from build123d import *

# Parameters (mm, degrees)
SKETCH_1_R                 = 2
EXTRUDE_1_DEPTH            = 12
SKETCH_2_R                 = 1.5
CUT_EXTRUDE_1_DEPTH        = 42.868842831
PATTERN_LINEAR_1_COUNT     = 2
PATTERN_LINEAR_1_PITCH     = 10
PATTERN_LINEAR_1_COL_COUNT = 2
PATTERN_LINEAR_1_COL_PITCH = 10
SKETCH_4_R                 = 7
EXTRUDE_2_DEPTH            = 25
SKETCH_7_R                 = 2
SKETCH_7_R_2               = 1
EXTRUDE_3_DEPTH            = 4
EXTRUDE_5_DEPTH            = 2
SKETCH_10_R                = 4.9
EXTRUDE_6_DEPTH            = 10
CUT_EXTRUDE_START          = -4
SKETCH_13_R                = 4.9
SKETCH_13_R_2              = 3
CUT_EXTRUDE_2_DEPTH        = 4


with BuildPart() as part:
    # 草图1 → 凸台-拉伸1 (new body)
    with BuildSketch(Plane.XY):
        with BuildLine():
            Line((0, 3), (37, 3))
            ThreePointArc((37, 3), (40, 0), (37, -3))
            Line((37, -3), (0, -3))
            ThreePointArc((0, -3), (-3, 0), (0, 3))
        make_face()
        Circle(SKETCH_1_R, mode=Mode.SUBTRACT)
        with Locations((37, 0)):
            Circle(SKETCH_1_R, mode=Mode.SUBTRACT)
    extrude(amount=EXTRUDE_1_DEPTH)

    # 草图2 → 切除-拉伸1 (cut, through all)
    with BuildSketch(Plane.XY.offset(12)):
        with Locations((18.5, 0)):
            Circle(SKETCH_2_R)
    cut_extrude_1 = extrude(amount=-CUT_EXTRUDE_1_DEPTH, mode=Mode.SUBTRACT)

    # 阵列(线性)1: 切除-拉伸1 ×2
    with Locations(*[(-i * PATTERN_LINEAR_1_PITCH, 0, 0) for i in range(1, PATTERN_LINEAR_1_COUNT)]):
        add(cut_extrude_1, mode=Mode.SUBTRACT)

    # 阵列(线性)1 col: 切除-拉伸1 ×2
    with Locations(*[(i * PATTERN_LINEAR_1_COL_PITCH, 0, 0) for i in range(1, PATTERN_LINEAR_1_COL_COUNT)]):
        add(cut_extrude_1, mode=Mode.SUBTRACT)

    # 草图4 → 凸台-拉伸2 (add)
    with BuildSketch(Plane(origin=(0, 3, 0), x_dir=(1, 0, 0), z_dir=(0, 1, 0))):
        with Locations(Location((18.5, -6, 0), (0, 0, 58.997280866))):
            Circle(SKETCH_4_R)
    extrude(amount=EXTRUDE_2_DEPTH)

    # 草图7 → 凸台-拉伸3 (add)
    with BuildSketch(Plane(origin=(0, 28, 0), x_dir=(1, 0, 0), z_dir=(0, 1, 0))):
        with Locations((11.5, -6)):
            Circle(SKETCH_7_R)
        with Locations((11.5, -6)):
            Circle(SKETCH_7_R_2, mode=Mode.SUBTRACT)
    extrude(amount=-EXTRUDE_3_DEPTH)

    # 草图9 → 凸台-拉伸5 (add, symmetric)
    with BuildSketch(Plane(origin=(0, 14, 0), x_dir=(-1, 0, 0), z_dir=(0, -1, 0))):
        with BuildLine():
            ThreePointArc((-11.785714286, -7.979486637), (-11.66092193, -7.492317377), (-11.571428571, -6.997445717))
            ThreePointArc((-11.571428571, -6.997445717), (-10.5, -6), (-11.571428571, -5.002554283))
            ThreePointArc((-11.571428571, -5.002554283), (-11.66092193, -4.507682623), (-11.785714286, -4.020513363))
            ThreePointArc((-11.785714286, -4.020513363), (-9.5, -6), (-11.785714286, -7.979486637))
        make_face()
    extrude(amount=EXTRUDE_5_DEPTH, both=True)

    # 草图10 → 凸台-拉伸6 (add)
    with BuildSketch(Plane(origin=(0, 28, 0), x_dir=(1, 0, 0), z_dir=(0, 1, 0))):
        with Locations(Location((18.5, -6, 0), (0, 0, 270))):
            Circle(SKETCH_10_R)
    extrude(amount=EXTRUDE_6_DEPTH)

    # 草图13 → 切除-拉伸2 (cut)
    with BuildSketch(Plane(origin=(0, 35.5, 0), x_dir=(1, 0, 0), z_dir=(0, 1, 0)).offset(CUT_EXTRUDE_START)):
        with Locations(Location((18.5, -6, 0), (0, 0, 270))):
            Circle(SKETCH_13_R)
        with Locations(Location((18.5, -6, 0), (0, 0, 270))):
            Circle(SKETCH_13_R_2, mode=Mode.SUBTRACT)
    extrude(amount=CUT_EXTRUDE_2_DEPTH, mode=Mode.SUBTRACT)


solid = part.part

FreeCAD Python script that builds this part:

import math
import FreeCAD as App
import Part
import Sketcher
Q = App.Units.Quantity

doc = App.newDocument("Part")
params = doc.addObject("Spreadsheet::Sheet", "Params")
for row, (alias, value) in enumerate([
    ("sketch1_diameter", "4 mm"),
    ("sketch1_radius", "3 mm"),
    ("sketch1_width", "37 mm"),
    ("pad1_length", "12 mm"),
    ("sketch2_diameter", "3 mm"),
    ("linearpattern_pitch", "10 mm"),
    ("linearpattern2_pitch", "10 mm"),
    ("sketch3_diameter", "14 mm"),
    ("pad2_length", "25 mm"),
    ("sketch4_diameter", "4 mm"),
    ("sketch4_diameter2", "2 mm"),
    ("pad3_length", "4 mm"),
    ("sketch5_radius", "7 mm"),
    ("sketch5_radius2", "2 mm"),
    ("sketch5_radius3", "1 mm"),
    ("pad4_length", "4 mm"),
    ("sketch6_diameter", "9.8 mm"),
    ("pad5_length", "10 mm"),
    ("sketch7_diameter", "6 mm"),
    ("sketch7_diameter2", "9.8 mm"),
    ("pocket2_length", "4 mm"),
], start=1):
    params.set(f"A{row}", alias)
    params.set(f"B{row}", "=" + value)
    params.setAlias(f"B{row}", alias)

body = doc.addObject("PartDesign::Body", "Body")

# Sketch on XY plane
sketch1 = body.newObject("Sketcher::SketchObject", "Sketch")
sketch1.AttachmentSupport = (doc.getObject("XY_Plane"), [""])
sketch1.MapMode = "FlatFace"
sketch1.addGeometry([
    Part.LineSegment(App.Vector(37, 3, 0), App.Vector(0, 3, 0)),  # 0
    Part.ArcOfCircle(Part.Circle(App.Vector(0, 0, 0), App.Vector(0, 0, 1), 3), math.radians(90), math.radians(270)),  # 1
    Part.LineSegment(App.Vector(0, -3, 0), App.Vector(37, -3, 0)),  # 2
    Part.ArcOfCircle(Part.Circle(App.Vector(37, 0, 0), App.Vector(0, 0, 1), 3), math.radians(-90), math.radians(90)),  # 3
    Part.Circle(App.Vector(37, 0, 0), App.Vector(0, 0, 1), 2),  # 4
    Part.Circle(App.Vector(0, 0, 0), App.Vector(0, 0, 1), 2),  # 5
], False)
sketch1.addConstraint([
    Sketcher.Constraint("Tangent", 0, 2, 1, 1),
    Sketcher.Constraint("Tangent", 1, 2, 2, 1),
    Sketcher.Constraint("Tangent", 2, 2, 3, 1),
    Sketcher.Constraint("Tangent", 3, 2, 0, 1),
    Sketcher.Constraint("Horizontal", 0),
    Sketcher.Constraint("Horizontal", 2),
    Sketcher.Constraint("Coincident", 1, 3, -1, 1),
    Sketcher.Constraint("Coincident", 5, 3, -1, 1),
    Sketcher.Constraint("Coincident", 4, 3, 3, 3),
    Sketcher.Constraint("Equal", 4, 5),
    Sketcher.Constraint("Diameter", 4, Q("4 mm")),
    Sketcher.Constraint("Radius", 1, Q("3 mm")),
    Sketcher.Constraint("DistanceX", 0, 2, 0, 1, Q("37 mm")),
])
sketch1.setExpression("Constraints[10]", "Params.sketch1_diameter")
sketch1.setExpression("Constraints[11]", "Params.sketch1_radius")
sketch1.setExpression("Constraints[12]", "Params.sketch1_width")
pad1 = body.newObject("PartDesign::Pad", "Pad")
pad1.Profile = sketch1
pad1.setExpression("Length", "Params.pad1_length")

# Sketch on XY plane
sketch2 = body.newObject("Sketcher::SketchObject", "Sketch001")
sketch2.AttachmentSupport = (doc.getObject("XY_Plane"), [""])
sketch2.MapMode = "FlatFace"
sketch2.AttachmentOffset = App.Placement(App.Vector(0, 0, 12), App.Rotation())
sketch2.addGeometry(Part.Circle(App.Vector(18.5, 0, 0), App.Vector(0, 0, 1), 1.5), False)
sketch2.addConstraint([
    Sketcher.Constraint("PointOnObject", 0, 3, -1),
    Sketcher.Constraint("Diameter", 0, Q("3 mm")),
    Sketcher.Constraint("DistanceX", -1, 1, 0, 3, Q("18.5 mm")),
])
sketch2.setExpression("Constraints[1]", "Params.sketch2_diameter")
pocket1 = body.newObject("PartDesign::Pocket", "Pocket")
pocket1.Profile = sketch2
pocket1.Type = "ThroughAll"
doc.recompute()

linearpattern = body.newObject("PartDesign::LinearPattern", "LinearPattern")
linearpattern.Originals = [pocket1]
linearpattern.Direction = (doc.getObject("X_Axis"), [""])
linearpattern.Mode = "offset"
linearpattern.setExpression("Offset", "Params.linearpattern_pitch")
linearpattern.Occurrences = 2
linearpattern.Reversed = True
body.Tip = linearpattern
doc.recompute()

linearpattern2 = body.newObject("PartDesign::LinearPattern", "LinearPattern001")
linearpattern2.Originals = [pocket1]
linearpattern2.Direction = (doc.getObject("X_Axis"), [""])
linearpattern2.Mode = "offset"
linearpattern2.setExpression("Offset", "Params.linearpattern2_pitch")
linearpattern2.Occurrences = 2
body.Tip = linearpattern2

# Sketch on XZ plane
sketch3 = body.newObject("Sketcher::SketchObject", "Sketch002")
sketch3.AttachmentSupport = (doc.getObject("XZ_Plane"), [""])
sketch3.MapMode = "FlatFace"
sketch3.AttachmentOffset = App.Placement(App.Vector(0, 0, -3), App.Rotation())
sketch3.addGeometry(Part.Circle(App.Vector(18, 6, 0), App.Vector(0, 0, 1), 7), False)
sketch3.addConstraint([
    Sketcher.Constraint("Diameter", 0, Q("14 mm")),
    Sketcher.Constraint("DistanceY", -1, 1, 0, 3, Q("6 mm")),
    Sketcher.Constraint("DistanceX", -1, 1, 0, 3, Q("18.5 mm")),
])
sketch3.setExpression("Constraints[0]", "Params.sketch3_diameter")
pad2 = body.newObject("PartDesign::Pad", "Pad001")
pad2.Profile = sketch3
pad2.setExpression("Length", "Params.pad2_length")
pad2.Reversed = True

# Sketch on XZ plane
sketch4 = body.newObject("Sketcher::SketchObject", "Sketch003")
sketch4.AttachmentSupport = (doc.getObject("XZ_Plane"), [""])
sketch4.MapMode = "FlatFace"
sketch4.AttachmentOffset = App.Placement(App.Vector(0, 0, -28), App.Rotation())
sketch4.addGeometry([
    Part.Circle(App.Vector(11.5, 6, 0), App.Vector(0, 0, 1), 2),
    Part.Circle(App.Vector(11.5, 6, 0), App.Vector(0, 0, 1), 1),
], False)
sketch4.addConstraint([
    Sketcher.Constraint("Coincident", 1, 3, 0, 3),
    Sketcher.Constraint("Diameter", 0, Q("4 mm")),
    Sketcher.Constraint("Diameter", 1, Q("2 mm")),
    Sketcher.Constraint("DistanceY", -1, 1, 0, 3, Q("6 mm")),
    Sketcher.Constraint("DistanceX", -1, 1, 0, 3, Q("11.5 mm")),
])
sketch4.setExpression("Constraints[1]", "Params.sketch4_diameter")
sketch4.setExpression("Constraints[2]", "Params.sketch4_diameter2")
pad3 = body.newObject("PartDesign::Pad", "Pad002")
pad3.Profile = sketch4
pad3.setExpression("Length", "Params.pad3_length")

# Sketch on XZ plane
sketch5 = body.newObject("Sketcher::SketchObject", "Sketch004")
sketch5.AttachmentSupport = (doc.getObject("XZ_Plane"), [""])
sketch5.MapMode = "FlatFace"
sketch5.AttachmentOffset = App.Placement(App.Vector(0, 0, -14), App.Rotation())
sketch5.addGeometry([
    Part.ArcOfCircle(Part.Circle(App.Vector(18.5, 6, 0), App.Vector(0, 0, 1), 7), math.radians(163.57), math.radians(171.81)),
    Part.ArcOfCircle(Part.Circle(App.Vector(11.5, 6, 0), App.Vector(0, 0, 1), 2), math.radians(82), math.radians(278)),
    Part.ArcOfCircle(Part.Circle(App.Vector(18.5, 6, 0), App.Vector(0, 0, 1), 7), math.radians(-171.81), math.radians(-163.57)),
    Part.ArcOfCircle(Part.Circle(App.Vector(11.5, 6, 0), App.Vector(0, 0, 1), 1), math.radians(86), math.radians(274)),
], False)
sketch5.addConstraint([
    Sketcher.Constraint("Coincident", 0, 1, 1, 1),
    Sketcher.Constraint("Coincident", 1, 2, 2, 2),
    Sketcher.Constraint("Coincident", 2, 1, 3, 2),
    Sketcher.Constraint("Coincident", 3, 1, 0, 2),
    Sketcher.Constraint("Coincident", 2, 3, 0, 3),
    Sketcher.Constraint("Coincident", 3, 3, 1, 3),
    Sketcher.Constraint("Equal", 0, 2),
    Sketcher.Constraint("Horizontal", 0, 3, 1, 3),
    Sketcher.Constraint("Radius", 0, Q("7 mm")),
    Sketcher.Constraint("Radius", 1, Q("2 mm")),
    Sketcher.Constraint("Radius", 3, Q("1 mm")),
    Sketcher.Constraint("DistanceY", -1, 1, 0, 3, Q("6 mm")),
    Sketcher.Constraint("DistanceX", 1, 3, 0, 3, Q("7 mm")),
    Sketcher.Constraint("DistanceX", -1, 1, 0, 3, Q("18.5 mm")),
])
sketch5.setExpression("Constraints[8]", "Params.sketch5_radius")
sketch5.setExpression("Constraints[9]", "Params.sketch5_radius2")
sketch5.setExpression("Constraints[10]", "Params.sketch5_radius3")
pad4 = body.newObject("PartDesign::Pad", "Pad003")
pad4.Profile = sketch5
pad4.setExpression("Length", "Params.pad4_length")
pad4.Midplane = True

# Sketch on XZ plane
sketch6 = body.newObject("Sketcher::SketchObject", "Sketch005")
sketch6.AttachmentSupport = (doc.getObject("XZ_Plane"), [""])
sketch6.MapMode = "FlatFace"
sketch6.AttachmentOffset = App.Placement(App.Vector(0, 0, -28), App.Rotation())
sketch6.addGeometry(Part.Circle(App.Vector(18.5, 6, 0), App.Vector(0, 0, 1), 4.9), False)
sketch6.addConstraint([
    Sketcher.Constraint("Diameter", 0, Q("9.8 mm")),
    Sketcher.Constraint("DistanceY", -1, 1, 0, 3, Q("6 mm")),
    Sketcher.Constraint("DistanceX", -1, 1, 0, 3, Q("18.5 mm")),
])
sketch6.setExpression("Constraints[0]", "Params.sketch6_diameter")
pad5 = body.newObject("PartDesign::Pad", "Pad004")
pad5.Profile = sketch6
pad5.setExpression("Length", "Params.pad5_length")
pad5.Reversed = True

# Sketch on XZ plane
sketch7 = body.newObject("Sketcher::SketchObject", "Sketch006")
sketch7.AttachmentSupport = (doc.getObject("XZ_Plane"), [""])
sketch7.MapMode = "FlatFace"
sketch7.AttachmentOffset = App.Placement(App.Vector(0, 0, -31.5), App.Rotation())
sketch7.addGeometry([
    Part.Circle(App.Vector(18.5, 6, 0), App.Vector(0, 0, 1), 4.9),
    Part.Circle(App.Vector(18.5, 6, 0), App.Vector(0, 0, 1), 3),
], False)
sketch7.addConstraint([
    Sketcher.Constraint("Coincident", 1, 3, 0, 3),
    Sketcher.Constraint("Diameter", 1, Q("6 mm")),
    Sketcher.Constraint("Diameter", 0, Q("9.8 mm")),
    Sketcher.Constraint("DistanceY", -1, 1, 0, 3, Q("6 mm")),
    Sketcher.Constraint("DistanceX", -1, 1, 0, 3, Q("18.5 mm")),
])
sketch7.setExpression("Constraints[1]", "Params.sketch7_diameter")
sketch7.setExpression("Constraints[2]", "Params.sketch7_diameter2")
pocket2 = body.newObject("PartDesign::Pocket", "Pocket001")
pocket2.Profile = sketch7
pocket2.setExpression("Length", "Params.pocket2_length")

doc.recompute()
